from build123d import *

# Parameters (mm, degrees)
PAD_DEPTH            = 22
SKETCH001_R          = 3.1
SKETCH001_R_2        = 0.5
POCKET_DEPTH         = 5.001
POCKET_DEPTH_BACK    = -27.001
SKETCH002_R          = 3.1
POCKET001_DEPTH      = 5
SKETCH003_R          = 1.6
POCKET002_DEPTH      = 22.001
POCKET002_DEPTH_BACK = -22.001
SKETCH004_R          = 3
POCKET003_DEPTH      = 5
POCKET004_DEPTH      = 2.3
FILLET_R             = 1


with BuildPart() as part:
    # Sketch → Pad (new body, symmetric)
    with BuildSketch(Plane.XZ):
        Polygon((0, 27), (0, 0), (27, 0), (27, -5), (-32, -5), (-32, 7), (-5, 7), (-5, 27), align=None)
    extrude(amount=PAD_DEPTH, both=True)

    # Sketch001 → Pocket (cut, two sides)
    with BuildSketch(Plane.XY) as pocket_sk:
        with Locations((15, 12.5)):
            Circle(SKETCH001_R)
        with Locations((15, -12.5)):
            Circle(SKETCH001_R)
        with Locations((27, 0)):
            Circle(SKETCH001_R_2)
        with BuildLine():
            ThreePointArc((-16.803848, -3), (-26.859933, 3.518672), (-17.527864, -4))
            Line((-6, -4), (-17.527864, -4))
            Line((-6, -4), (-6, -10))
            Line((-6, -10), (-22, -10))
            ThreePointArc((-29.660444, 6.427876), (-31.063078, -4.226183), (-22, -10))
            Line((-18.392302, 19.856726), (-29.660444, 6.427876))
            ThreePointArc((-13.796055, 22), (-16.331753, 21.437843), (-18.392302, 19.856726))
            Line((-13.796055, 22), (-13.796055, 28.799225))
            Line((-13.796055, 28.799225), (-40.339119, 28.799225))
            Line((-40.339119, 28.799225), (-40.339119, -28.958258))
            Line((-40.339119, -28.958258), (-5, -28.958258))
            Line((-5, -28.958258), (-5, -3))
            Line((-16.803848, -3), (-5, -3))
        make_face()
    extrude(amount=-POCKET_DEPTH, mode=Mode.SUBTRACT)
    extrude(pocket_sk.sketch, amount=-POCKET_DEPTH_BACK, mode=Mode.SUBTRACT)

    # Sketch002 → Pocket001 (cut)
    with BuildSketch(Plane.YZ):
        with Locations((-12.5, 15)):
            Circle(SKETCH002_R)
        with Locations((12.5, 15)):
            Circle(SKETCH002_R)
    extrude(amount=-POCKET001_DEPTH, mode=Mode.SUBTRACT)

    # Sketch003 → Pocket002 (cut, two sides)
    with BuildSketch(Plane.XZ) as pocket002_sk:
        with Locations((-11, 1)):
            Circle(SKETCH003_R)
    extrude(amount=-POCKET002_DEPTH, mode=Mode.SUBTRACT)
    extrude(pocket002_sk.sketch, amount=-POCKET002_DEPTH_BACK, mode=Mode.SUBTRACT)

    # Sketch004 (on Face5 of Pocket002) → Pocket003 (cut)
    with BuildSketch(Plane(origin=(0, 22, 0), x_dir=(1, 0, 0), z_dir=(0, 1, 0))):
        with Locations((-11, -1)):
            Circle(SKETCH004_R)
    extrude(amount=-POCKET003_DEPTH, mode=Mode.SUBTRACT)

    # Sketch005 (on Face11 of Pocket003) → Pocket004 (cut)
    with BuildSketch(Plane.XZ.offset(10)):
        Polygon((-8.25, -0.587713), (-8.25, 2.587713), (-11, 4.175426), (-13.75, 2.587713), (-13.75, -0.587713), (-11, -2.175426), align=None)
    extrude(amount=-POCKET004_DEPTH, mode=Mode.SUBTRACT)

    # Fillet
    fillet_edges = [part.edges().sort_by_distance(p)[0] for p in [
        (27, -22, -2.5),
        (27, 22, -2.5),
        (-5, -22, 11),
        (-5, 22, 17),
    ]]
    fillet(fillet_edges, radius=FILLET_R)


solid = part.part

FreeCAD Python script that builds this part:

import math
import FreeCAD as App
import Part
import Sketcher
Q = App.Units.Quantity


def edges_at(feature, points):
    """Names of the edges that pass closest to the given points."""
    edges = feature.Shape.Edges
    near = lambda p: min(range(len(edges)), key=lambda i: edges[i].distToShape(Part.Vertex(*p))[0])
    return sorted({f"Edge{near(p) + 1}" for p in points})


def add_polygon(sketch, points):
    """Adds a closed chain of lines whose ends are joined by coincident constraints."""
    first, n = sketch.GeometryCount, len(points)
    for a, b in zip(points, points[1:] + points[:1]):
        sketch.addGeometry(Part.LineSegment(App.Vector(*a, 0), App.Vector(*b, 0)), False)
    for i in range(n):
        sketch.addConstraint(Sketcher.Constraint("Coincident", first + i, 2, first + (i + 1) % n, 1))

doc = App.newDocument("Part")
body = doc.addObject("PartDesign::Body", "Body")

sketch1 = body.newObject("Sketcher::SketchObject", "Sketch")
sketch1.AttachmentSupport = (doc.getObject("XZ_Plane"), [""])
sketch1.MapMode = "FlatFace"
add_polygon(sketch1, [(0, 0), (0, 27), (-5, 27), (-5, 7), (-32, 7), (-32, -5), (27, -5), (27, 0)])
sketch1.addConstraint([
    Sketcher.Constraint("Vertical", 0),
    Sketcher.Constraint("Horizontal", 1),
    Sketcher.Constraint("Vertical", 2),
    Sketcher.Constraint("Horizontal", 3),
    Sketcher.Constraint("Vertical", 4),
    Sketcher.Constraint("Horizontal", 5),
    Sketcher.Constraint("Vertical", 6),
    Sketcher.Constraint("Horizontal", 7),
    Sketcher.Constraint("Coincident", 7, 2, -1, 1),
    Sketcher.Constraint("Equal", 3, 7),
    Sketcher.Constraint("Equal", 7, 0),
    Sketcher.Constraint("Equal", 1, 6),
    Sketcher.Constraint("DistanceX", 1, 2, 1, 1, 5.0),
    Sketcher.Constraint("DistanceX", 3, 2, 3, 1, 27.0),
    Sketcher.Constraint("DistanceY", 2, 2, 2, 1, 20.0),
])
pad1 = body.newObject("PartDesign::Pad", "Pad")
pad1.Profile = sketch1
pad1.Length = 44
pad1.Midplane = True

sketch2 = body.newObject("Sketcher::SketchObject", "Sketch001")
sketch2.AttachmentSupport = (doc.getObject("XY_Plane"), [""])
sketch2.MapMode = "FlatFace"
sketch2.addGeometry([
    Part.Circle(App.Vector(15, 12.5, 0), App.Vector(0, 0, 1), 3.1),
    Part.Circle(App.Vector(15, -12.5, 0), App.Vector(0, 0, 1), 3.1),
    Part.Circle(App.Vector(27, 0, 0), App.Vector(0, 0, 1), 0.5),
    Part.ArcOfCircle(Part.Circle(App.Vector(-22, 0, 0), App.Vector(0, 0, 1), 6), math.radians(-30), math.radians(318)),
    Part.LineSegment(App.Vector(-17.5, -4, 0), App.Vector(-6, -4, 0)),
    Part.LineSegment(App.Vector(-6, -4, 0), App.Vector(-6, -10, 0)),
    Part.LineSegment(App.Vector(-6, -10, 0), App.Vector(-22, -10, 0)),
    Part.ArcOfCircle(Part.Circle(App.Vector(-22, 0, 0), App.Vector(0, 0, 1), 10), math.radians(140), math.radians(270)),
    Part.LineSegment(App.Vector(-29.7, 6.4, 0), App.Vector(-18.4, 19.9, 0)),
    Part.ArcOfCircle(Part.Circle(App.Vector(-13.8, 16, 0), App.Vector(0, 0, 1), 6), math.radians(90), math.radians(140)),
    Part.LineSegment(App.Vector(-13.8, 22, 0), App.Vector(-13.8, 28.8, 0)),
    Part.LineSegment(App.Vector(-13.8, 28.8, 0), App.Vector(-40.3, 28.8, 0)),
    Part.LineSegment(App.Vector(-40.3, 28.8, 0), App.Vector(-40.3, -29, 0)),
    Part.LineSegment(App.Vector(-40.3, -29, 0), App.Vector(-5, -29, 0)),
    Part.LineSegment(App.Vector(-5, -29, 0), App.Vector(-5, -3, 0)),
    Part.LineSegment(App.Vector(-5, -3, 0), App.Vector(-16.8, -3, 0)),
], False)
sketch2.addConstraint([
    Sketcher.Constraint("Coincident", 3, 2, 4, 1),
    Sketcher.Constraint("Coincident", 4, 2, 5, 1),
    Sketcher.Constraint("Coincident", 5, 2, 6, 1),
    Sketcher.Constraint("Tangent", 6, 2, 7, 2),
    Sketcher.Constraint("Tangent", 7, 1, 8, 1),
    Sketcher.Constraint("Tangent", 8, 2, 9, 2),
    Sketcher.Constraint("Coincident", 9, 1, 10, 1),
    Sketcher.Constraint("Coincident", 10, 2, 11, 1),
    Sketcher.Constraint("Coincident", 11, 2, 12, 1),
    Sketcher.Constraint("Coincident", 12, 2, 13, 1),
    Sketcher.Constraint("Coincident", 13, 2, 14, 1),
    Sketcher.Constraint("Coincident", 14, 2, 15, 1),
    Sketcher.Constraint("Coincident", 15, 2, 3, 1),
    Sketcher.Constraint("Horizontal", 4),
    Sketcher.Constraint("Vertical", 5),
    Sketcher.Constraint("Horizontal", 6),
    Sketcher.Constraint("Vertical", 10),
    Sketcher.Constraint("Horizontal", 11),
    Sketcher.Constraint("Vertical", 12),
    Sketcher.Constraint("Horizontal", 13),
    Sketcher.Constraint("Vertical", 14),
    Sketcher.Constraint("Horizontal", 15),
    Sketcher.Constraint("Coincident", 7, 3, 3, 3),
    Sketcher.Constraint("Equal", 0, 1),
    Sketcher.Constraint("Equal", 3, 9),
    Sketcher.Constraint("Symmetric", 0, 3, 1, 3, -1),
    Sketcher.Constraint("PointOnObject", 2, 3, -1),
    Sketcher.Constraint("PointOnObject", 3, 3, -1),
    Sketcher.Constraint("Diameter", 2, 1.0),
    Sketcher.Constraint("Radius", 3, 6.0),
    Sketcher.Constraint("Radius", 7, 9.999999),
    Sketcher.Constraint("Diameter", 0, 6.2),
    Sketcher.Constraint("DistanceX", 6, 2, 6, 1, 16.0),
    Sketcher.Constraint("DistanceY", 5, 2, 5, 1, 6.0),
    Sketcher.Constraint("Angle", 8, Q("50.000003 deg")),
    Sketcher.Constraint("DistanceX", -1, 1, 0, 3, 15.0),
    Sketcher.Constraint("DistanceX", -1, 1, 2, 3, 27.0),
    Sketcher.Constraint("DistanceX", 3, 3, -1, 1, 22.000001),
    Sketcher.Constraint("DistanceY", -1, 1, 9, 3, 15.999999),
    Sketcher.Constraint("DistanceX", 13, 2, -1, 1, 5.0),
    Sketcher.Constraint("DistanceY", 14, 2, -1, 1, 3.0),
    Sketcher.Constraint("DistanceY", 1, 3, 0, 3, 25.0),
    Sketcher.Constraint("DistanceX", 13, 1, 13, 2, 35.339119),
    Sketcher.Constraint("DistanceY", 14, 1, 14, 2, 25.958258),
    Sketcher.Constraint("DistanceY", 8, 2, 10, 2, 8.942499),
    Sketcher.Constraint("DistanceX", 11, 2, 11, 1, 26.543064),
])
pocket1 = body.newObject("PartDesign::Pocket", "Pocket")
pocket1.Profile = sketch2
pocket1.Type = "ThroughAll"
pocket1.Midplane = True

sketch3 = body.newObject("Sketcher::SketchObject", "Sketch002")
sketch3.AttachmentSupport = (doc.getObject("YZ_Plane"), [""])
sketch3.MapMode = "FlatFace"
sketch3.addGeometry([
    Part.Circle(App.Vector(-12.5, 15, 0), App.Vector(0, 0, 1), 3.1),
    Part.Circle(App.Vector(12.5, 15, 0), App.Vector(0, 0, 1), 3.1),
], False)
sketch3.addConstraint([
    Sketcher.Constraint("Equal", 0, 1),
    Sketcher.Constraint("Symmetric", 0, 3, 1, 3, -2),
    Sketcher.Constraint("Diameter", 0, 6.2),
    Sketcher.Constraint("DistanceY", -1, 1, 0, 3, 15.0),
    Sketcher.Constraint("DistanceX", 0, 3, 1, 3, 25.0),
])
pocket2 = body.newObject("PartDesign::Pocket", "Pocket001")
pocket2.Profile = sketch3
pocket2.Length = 5

sketch4 = body.newObject("Sketcher::SketchObject", "Sketch003")
sketch4.AttachmentSupport = (doc.getObject("XZ_Plane"), [""])
sketch4.MapMode = "FlatFace"
sketch4.addGeometry(Part.Circle(App.Vector(-11, 1, 0), App.Vector(0, 0, 1), 1.6), False)
sketch4.addConstraint([
    Sketcher.Constraint("Diameter", 0, 3.2),
    Sketcher.Constraint("DistanceX", 0, 3, -1, 1, 11.0),
    Sketcher.Constraint("DistanceY", -1, 1, 0, 3, 1.0),
])
pocket3 = body.newObject("PartDesign::Pocket", "Pocket002")
pocket3.Profile = sketch4
pocket3.Type = "ThroughAll"
pocket3.Midplane = True

sketch5 = body.newObject("Sketcher::SketchObject", "Sketch004")
sketch5.AttachmentSupport = (doc.getObject("XZ_Plane"), [""])
sketch5.MapMode = "FlatFace"
sketch5.AttachmentOffset = App.Placement(App.Vector(0, 0, -22), App.Rotation())
sketch5.addGeometry(Part.Circle(App.Vector(-11, 1, 0), App.Vector(0, 0, 1), 3), False)
sketch5.addConstraint([
    Sketcher.Constraint("Diameter", 0, 6.0),
    Sketcher.Constraint("DistanceX", 0, 3, -1, 1, 11.0),
    Sketcher.Constraint("DistanceY", -1, 1, 0, 3, 1.0),
])
pocket4 = body.newObject("PartDesign::Pocket", "Pocket003")
pocket4.Profile = sketch5
pocket4.Length = 5
pocket4.Reversed = True

sketch6 = body.newObject("Sketcher::SketchObject", "Sketch005")
sketch6.AttachmentSupport = (doc.getObject("XZ_Plane"), [""])
sketch6.MapMode = "FlatFace"
sketch6.AttachmentOffset = App.Placement(App.Vector(0, 0, 10), App.Rotation())
add_polygon(sketch6, [(-8.2, -0.6), (-8.2, 2.6), (-11, 4.2), (-13.8, 2.6), (-13.8, -0.6), (-11, -2.2)])
sketch6.addConstraint([
    Sketcher.Constraint("Vertical", 0),
    Sketcher.Constraint("Vertical", 3),
    Sketcher.Constraint("Parallel", 1, 4),
    Sketcher.Constraint("Parallel", 2, 5),
    Sketcher.Constraint("Horizontal", 0, 2, 2, 2),
    Sketcher.Constraint("Horizontal", 3, 2, 5, 2),
    Sketcher.Constraint("Vertical", 1, 2, 4, 2),
    Sketcher.Constraint("Angle", 1, Q("150.000004 deg")),
    Sketcher.Constraint("DistanceX", 1, 2, -1, 1, 11.0),
    Sketcher.Constraint("DistanceX", 2, 2, 0, 2, 5.5),
    Sketcher.Constraint("DistanceY", 0, 1, 0, 2, 3.175426),
    Sketcher.Constraint("DistanceY", -1, 1, 0, 2, 2.587713),
])
pocket5 = body.newObject("PartDesign::Pocket", "Pocket004")
pocket5.Profile = sketch6
pocket5.Length = 2.3
doc.recompute()

fillet = body.newObject("PartDesign::Fillet", "Fillet")
fillet.Base = (pocket5, edges_at(pocket5, [
    (27, -22, -2.5),
    (27, 22, -2.5),
    (-5, -22, 11),
    (-5, 22, 17),
]))
fillet.Radius = 1

doc.recompute()
